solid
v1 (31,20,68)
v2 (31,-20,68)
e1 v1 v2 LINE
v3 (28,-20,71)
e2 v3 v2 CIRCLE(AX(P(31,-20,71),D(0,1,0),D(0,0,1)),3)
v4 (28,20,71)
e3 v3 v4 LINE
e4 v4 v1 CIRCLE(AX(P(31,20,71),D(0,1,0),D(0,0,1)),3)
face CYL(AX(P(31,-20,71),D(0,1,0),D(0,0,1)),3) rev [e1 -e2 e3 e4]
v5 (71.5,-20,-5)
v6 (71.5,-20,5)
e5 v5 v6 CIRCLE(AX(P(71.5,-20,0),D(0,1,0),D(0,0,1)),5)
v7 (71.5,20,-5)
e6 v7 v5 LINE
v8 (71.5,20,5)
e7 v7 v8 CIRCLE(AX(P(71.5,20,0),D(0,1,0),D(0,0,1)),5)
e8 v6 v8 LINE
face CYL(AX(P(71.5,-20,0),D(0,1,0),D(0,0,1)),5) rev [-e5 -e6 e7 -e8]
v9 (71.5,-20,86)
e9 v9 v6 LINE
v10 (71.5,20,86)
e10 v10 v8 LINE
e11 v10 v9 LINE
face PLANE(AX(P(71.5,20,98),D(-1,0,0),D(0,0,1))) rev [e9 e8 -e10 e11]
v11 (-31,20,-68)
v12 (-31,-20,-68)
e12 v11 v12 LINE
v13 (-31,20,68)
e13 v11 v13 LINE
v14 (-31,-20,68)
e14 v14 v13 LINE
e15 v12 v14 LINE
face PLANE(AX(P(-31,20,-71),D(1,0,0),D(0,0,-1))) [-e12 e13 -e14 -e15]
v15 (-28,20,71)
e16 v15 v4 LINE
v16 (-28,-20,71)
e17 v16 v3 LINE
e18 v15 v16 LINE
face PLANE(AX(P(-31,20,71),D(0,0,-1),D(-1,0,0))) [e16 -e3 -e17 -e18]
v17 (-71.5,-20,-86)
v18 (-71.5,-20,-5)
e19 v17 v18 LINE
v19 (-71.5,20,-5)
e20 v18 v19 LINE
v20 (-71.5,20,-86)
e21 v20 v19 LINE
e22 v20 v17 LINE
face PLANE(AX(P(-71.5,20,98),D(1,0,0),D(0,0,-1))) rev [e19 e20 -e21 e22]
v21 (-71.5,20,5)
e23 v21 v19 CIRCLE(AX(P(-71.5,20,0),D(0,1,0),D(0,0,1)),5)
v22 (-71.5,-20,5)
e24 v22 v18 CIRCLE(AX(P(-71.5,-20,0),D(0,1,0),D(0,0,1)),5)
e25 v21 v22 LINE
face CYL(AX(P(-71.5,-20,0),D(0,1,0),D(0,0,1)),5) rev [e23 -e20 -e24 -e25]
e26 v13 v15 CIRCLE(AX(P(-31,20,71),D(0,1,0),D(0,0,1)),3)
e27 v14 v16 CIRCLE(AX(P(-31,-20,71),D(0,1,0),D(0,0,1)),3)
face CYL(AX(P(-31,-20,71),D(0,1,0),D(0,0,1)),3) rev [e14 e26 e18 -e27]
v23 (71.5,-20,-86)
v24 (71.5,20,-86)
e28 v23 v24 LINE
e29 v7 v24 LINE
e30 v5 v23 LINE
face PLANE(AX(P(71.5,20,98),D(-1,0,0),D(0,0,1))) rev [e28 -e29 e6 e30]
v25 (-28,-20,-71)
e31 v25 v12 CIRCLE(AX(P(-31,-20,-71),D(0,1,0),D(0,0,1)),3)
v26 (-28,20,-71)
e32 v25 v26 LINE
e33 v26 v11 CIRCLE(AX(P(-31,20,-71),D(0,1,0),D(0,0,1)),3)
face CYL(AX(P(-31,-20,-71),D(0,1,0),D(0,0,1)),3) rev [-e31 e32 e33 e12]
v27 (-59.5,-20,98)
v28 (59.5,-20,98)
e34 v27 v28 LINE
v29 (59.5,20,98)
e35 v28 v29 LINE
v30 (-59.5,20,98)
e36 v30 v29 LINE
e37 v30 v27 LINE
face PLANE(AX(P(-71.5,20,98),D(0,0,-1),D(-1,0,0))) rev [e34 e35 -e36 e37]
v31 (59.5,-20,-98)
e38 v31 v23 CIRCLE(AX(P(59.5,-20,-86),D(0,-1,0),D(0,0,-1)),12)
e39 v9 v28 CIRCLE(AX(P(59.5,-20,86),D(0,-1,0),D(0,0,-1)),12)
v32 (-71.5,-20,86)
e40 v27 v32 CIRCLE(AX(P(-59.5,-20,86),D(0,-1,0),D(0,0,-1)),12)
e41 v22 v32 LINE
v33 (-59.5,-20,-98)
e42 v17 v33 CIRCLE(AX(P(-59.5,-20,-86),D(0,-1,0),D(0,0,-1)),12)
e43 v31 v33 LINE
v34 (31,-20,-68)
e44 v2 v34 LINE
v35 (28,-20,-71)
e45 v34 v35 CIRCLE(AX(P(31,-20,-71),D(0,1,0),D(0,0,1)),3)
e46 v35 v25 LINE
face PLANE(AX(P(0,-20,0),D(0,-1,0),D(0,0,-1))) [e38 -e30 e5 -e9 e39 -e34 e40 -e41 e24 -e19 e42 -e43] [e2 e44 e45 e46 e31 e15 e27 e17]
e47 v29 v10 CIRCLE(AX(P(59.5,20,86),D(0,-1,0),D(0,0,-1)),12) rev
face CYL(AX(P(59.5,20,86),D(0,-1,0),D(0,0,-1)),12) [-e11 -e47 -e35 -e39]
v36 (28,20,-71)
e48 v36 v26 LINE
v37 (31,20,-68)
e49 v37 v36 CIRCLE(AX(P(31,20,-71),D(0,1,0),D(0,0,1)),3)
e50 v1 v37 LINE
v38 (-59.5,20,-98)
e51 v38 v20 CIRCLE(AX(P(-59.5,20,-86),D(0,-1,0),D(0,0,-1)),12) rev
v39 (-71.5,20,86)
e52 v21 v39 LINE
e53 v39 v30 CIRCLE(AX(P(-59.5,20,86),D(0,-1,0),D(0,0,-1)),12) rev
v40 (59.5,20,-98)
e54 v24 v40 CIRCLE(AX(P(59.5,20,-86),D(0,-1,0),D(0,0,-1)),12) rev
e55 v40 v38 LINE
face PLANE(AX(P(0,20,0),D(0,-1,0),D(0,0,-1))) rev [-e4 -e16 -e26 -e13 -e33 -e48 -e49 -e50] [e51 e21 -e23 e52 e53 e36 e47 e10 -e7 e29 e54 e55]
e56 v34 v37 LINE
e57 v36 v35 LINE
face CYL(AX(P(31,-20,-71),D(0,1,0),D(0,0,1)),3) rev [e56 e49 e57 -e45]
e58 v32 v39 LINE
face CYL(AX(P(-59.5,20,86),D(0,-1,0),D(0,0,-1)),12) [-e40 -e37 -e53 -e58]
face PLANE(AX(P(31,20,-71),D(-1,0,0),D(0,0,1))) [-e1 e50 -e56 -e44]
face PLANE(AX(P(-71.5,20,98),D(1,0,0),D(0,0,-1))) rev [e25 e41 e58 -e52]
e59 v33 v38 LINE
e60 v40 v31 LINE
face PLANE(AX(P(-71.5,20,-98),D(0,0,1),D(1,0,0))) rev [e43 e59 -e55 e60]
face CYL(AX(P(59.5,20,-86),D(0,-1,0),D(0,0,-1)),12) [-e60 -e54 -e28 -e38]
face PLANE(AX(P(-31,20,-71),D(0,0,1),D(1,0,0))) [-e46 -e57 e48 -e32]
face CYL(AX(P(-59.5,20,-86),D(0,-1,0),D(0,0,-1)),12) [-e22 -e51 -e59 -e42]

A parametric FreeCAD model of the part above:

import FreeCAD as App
import Part
import Sketcher
Q = App.Units.Quantity


def edges_at(feature, points):
    """Names of the edges that pass closest to the given points."""
    edges = feature.Shape.Edges
    near = lambda p: min(range(len(edges)), key=lambda i: edges[i].distToShape(Part.Vertex(*p))[0])
    return sorted({f"Edge{near(p) + 1}" for p in points})


def add_polygon(sketch, points):
    """Adds a closed chain of lines whose ends are joined by coincident constraints."""
    first, n = sketch.GeometryCount, len(points)
    for a, b in zip(points, points[1:] + points[:1]):
        sketch.addGeometry(Part.LineSegment(App.Vector(*a, 0), App.Vector(*b, 0)), False)
    for i in range(n):
        sketch.addConstraint(Sketcher.Constraint("Coincident", first + i, 2, first + (i + 1) % n, 1))

doc = App.newDocument("Part")
body = doc.addObject("PartDesign::Body", "Body")

# Sketch on XZ plane
sketch1 = doc.addObject("Sketcher::SketchObject", "Sketch")
body.addObject(sketch1)
sketch1.AttachmentSupport = (doc.XZ_Plane, [""])
sketch1.MapMode = "FlatFace"
add_polygon(sketch1, [(-71.5, -98), (-71.5, 98), (71.5, 98), (71.5, -98)])  # lines 0-3
add_polygon(sketch1, [(31, 71), (-31, 71), (-31, -71), (31, -71)])  # lines 4-7
sketch1.addConstraint([
    Sketcher.Constraint("Vertical", 0),
    Sketcher.Constraint("Horizontal", 1),
    Sketcher.Constraint("Vertical", 2),
    Sketcher.Constraint("Horizontal", 3),
    Sketcher.Constraint("Horizontal", 4),
    Sketcher.Constraint("Vertical", 5),
    Sketcher.Constraint("Horizontal", 6),
    Sketcher.Constraint("Vertical", 7),
    Sketcher.Constraint("Symmetric", 0, 2, 2, 2, -1, 1),
    Sketcher.Constraint("Symmetric", 4, 2, 6, 2, -1, 1),
    Sketcher.Constraint("DistanceX", 1, 1, 1, 2, Q("143 mm")),
    Sketcher.Constraint("DistanceX", 4, 2, 4, 1, Q("62 mm")),
    Sketcher.Constraint("DistanceY", 0, 1, 0, 2, Q("196 mm")),
    Sketcher.Constraint("DistanceY", 5, 2, 5, 1, Q("142 mm")),
])
pad1 = doc.addObject("PartDesign::Pad", "Pad")
body.addObject(pad1)
pad1.Profile = sketch1
pad1.Length = 40
pad1.Midplane = True
doc.recompute()

fillet = doc.addObject("PartDesign::Fillet", "Fillet")
body.addObject(fillet)
fillet.Base = (pad1, edges_at(pad1, [
    (-71.5, 0, -98),
    (71.5, 0, -98),
    (71.5, 0, 98),
    (-71.5, 0, 98),
]))
fillet.Radius = 12

# Sketch on XZ plane
sketch2 = doc.addObject("Sketcher::SketchObject", "Sketch001")
body.addObject(sketch2)
sketch2.AttachmentSupport = (doc.XZ_Plane, [""])
sketch2.MapMode = "FlatFace"
sketch2.AttachmentOffset = App.Placement(App.Vector(0, 0, -20), App.Rotation())
sketch2.addGeometry([
    Part.Circle(App.Vector(-31, -71, 0), App.Vector(0, 0, 1), 3),
    Part.Circle(App.Vector(31, -71, 0), App.Vector(0, 0, 1), 3),
    Part.Circle(App.Vector(31, 71, 0), App.Vector(0, 0, 1), 3),
    Part.Circle(App.Vector(-31, 71, 0), App.Vector(0, 0, 1), 3),
], False)
sketch2.addConstraint([
    Sketcher.Constraint("Equal", 0, 1),
    Sketcher.Constraint("Equal", 1, 2),
    Sketcher.Constraint("Equal", 2, 3),
    Sketcher.Constraint("Symmetric", 0, 3, 2, 3, -1, 1),
    Sketcher.Constraint("Symmetric", 1, 3, 3, 3, -1, 1),
    Sketcher.Constraint("Symmetric", 0, 3, 1, 3, -2),
    Sketcher.Constraint("Diameter", 0, Q("6 mm")),
    Sketcher.Constraint("DistanceX", 0, 3, -1, 1, Q("31 mm")),
    Sketcher.Constraint("DistanceY", 0, 3, -1, 1, Q("71 mm")),
])
pocket1 = doc.addObject("PartDesign::Pocket", "Pocket")
body.addObject(pocket1)
pocket1.Profile = sketch2
pocket1.Length = 40
pocket1.Reversed = True

# Sketch on XZ plane
sketch3 = doc.addObject("Sketcher::SketchObject", "Sketch002")
body.addObject(sketch3)
sketch3.AttachmentSupport = (doc.XZ_Plane, [""])
sketch3.MapMode = "FlatFace"
sketch3.AttachmentOffset = App.Placement(App.Vector(0, 0, -20), App.Rotation())
sketch3.addGeometry([
    Part.Circle(App.Vector(-71.5, 0, 0), App.Vector(0, 0, 1), 5),
    Part.Circle(App.Vector(71.5, 0, 0), App.Vector(0, 0, 1), 5),
], False)
sketch3.addConstraint([
    Sketcher.Constraint("Equal", 0, 1),
    Sketcher.Constraint("Symmetric", 0, 3, 1, 3, -1, 1),
    Sketcher.Constraint("PointOnObject", 0, 3, -1),
    Sketcher.Constraint("Diameter", 0, Q("10 mm")),
    Sketcher.Constraint("DistanceX", 0, 3, 1, 3, Q("143 mm")),
])
pocket2 = doc.addObject("PartDesign::Pocket", "Pocket001")
body.addObject(pocket2)
pocket2.Profile = sketch3
pocket2.Length = 40
pocket2.Reversed = True

doc.recompute()
